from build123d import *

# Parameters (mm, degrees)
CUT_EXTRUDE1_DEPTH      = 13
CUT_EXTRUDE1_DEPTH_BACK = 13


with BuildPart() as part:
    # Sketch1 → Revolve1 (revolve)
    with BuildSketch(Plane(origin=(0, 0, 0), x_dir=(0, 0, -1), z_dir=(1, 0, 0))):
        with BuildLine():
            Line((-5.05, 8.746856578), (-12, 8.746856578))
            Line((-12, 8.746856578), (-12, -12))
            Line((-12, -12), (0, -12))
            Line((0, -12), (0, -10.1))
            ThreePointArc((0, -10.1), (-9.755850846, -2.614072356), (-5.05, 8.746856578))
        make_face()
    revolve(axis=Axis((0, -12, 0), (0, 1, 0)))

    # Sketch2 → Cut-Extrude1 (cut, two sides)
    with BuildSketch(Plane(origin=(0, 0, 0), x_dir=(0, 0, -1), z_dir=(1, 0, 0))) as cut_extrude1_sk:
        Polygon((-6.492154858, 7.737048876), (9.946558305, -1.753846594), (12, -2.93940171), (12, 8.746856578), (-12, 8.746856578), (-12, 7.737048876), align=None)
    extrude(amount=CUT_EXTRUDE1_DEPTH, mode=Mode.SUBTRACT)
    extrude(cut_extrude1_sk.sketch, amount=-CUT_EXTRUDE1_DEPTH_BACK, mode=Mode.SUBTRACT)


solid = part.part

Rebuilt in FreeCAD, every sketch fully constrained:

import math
import FreeCAD as App
import Part
import Sketcher

V = App.Vector
Q = App.Units.Quantity

doc = App.newDocument("Part")
body = doc.addObject("PartDesign::Body", "Body")

sketch1 = body.newObject("Sketcher::SketchObject", "Sketch")
sketch1.AttachmentSupport = (doc.getObject("YZ_Plane"), [""])
sketch1.MapMode = "FlatFace"
sketch1.addGeometry([
    Part.LineSegment(V(8.7, 5, 0), V(8.7, 12, 0)),
    Part.LineSegment(V(8.7, 12, 0), V(-12, 12, 0)),
    Part.LineSegment(V(-12, 12, 0), V(-12, 0, 0)),
    Part.LineSegment(V(-12, 0, 0), V(-10.1, 0, 0)),
    Part.ArcOfCircle(Part.Circle(V(0, 0, 0), V(0, 0, 1), 10.1), math.radians(30), math.radians(180)),
], False)
sketch1.addConstraint([
    Sketcher.Constraint("Coincident", 0, 2, 1, 1),
    Sketcher.Constraint("Coincident", 1, 2, 2, 1),
    Sketcher.Constraint("Coincident", 2, 2, 3, 1),
    Sketcher.Constraint("Coincident", 3, 2, 4, 2),
    Sketcher.Constraint("Coincident", 4, 1, 0, 1),
    Sketcher.Constraint("Vertical", 0),
    Sketcher.Constraint("Horizontal", 1),
    Sketcher.Constraint("Vertical", 2),
    Sketcher.Constraint("Horizontal", 3),
    Sketcher.Constraint("Coincident", 4, 3, -1, 1),
    Sketcher.Constraint("PointOnObject", 2, 2, -1),
    Sketcher.Constraint("Radius", 4, Q("10.1 mm")),
    Sketcher.Constraint("DistanceY", 2, 2, 2, 1, Q("12 mm")),
    Sketcher.Constraint("DistanceX", 3, 1, 3, 2, Q("1.9 mm")),
    Sketcher.Constraint("DistanceY", 0, 1, 0, 2, Q("6.95 mm")),
])
revolution = body.newObject("PartDesign::Revolution", "Revolution")
revolution.Profile = sketch1
revolution.ReferenceAxis = (sketch1, ["H_Axis"])
revolution.Angle = 360

sketch2 = body.newObject("Sketcher::SketchObject", "Sketch001")
sketch2.AttachmentSupport = (doc.getObject("YZ_Plane"), [""])
sketch2.MapMode = "FlatFace"
sketch2.addGeometry([
    Part.LineSegment(V(7.7, 6.5, 0), V(-1.8, -9.9, 0)),
    Part.LineSegment(V(-1.8, -9.9, 0), V(-2.9, -12, 0)),
    Part.LineSegment(V(-2.9, -12, 0), V(8.7, -12, 0)),
    Part.LineSegment(V(8.7, -12, 0), V(8.7, 12, 0)),
    Part.LineSegment(V(8.7, 12, 0), V(7.7, 12, 0)),
    Part.LineSegment(V(7.7, 12, 0), V(7.7, 6.5, 0)),
], False)
sketch2.addConstraint([
    Sketcher.Constraint("Coincident", 0, 2, 1, 1),
    Sketcher.Constraint("Coincident", 1, 2, 2, 1),
    Sketcher.Constraint("Coincident", 2, 2, 3, 1),
    Sketcher.Constraint("Coincident", 3, 2, 4, 1),
    Sketcher.Constraint("Coincident", 4, 2, 5, 1),
    Sketcher.Constraint("Coincident", 5, 2, 0, 1),
    Sketcher.Constraint("Horizontal", 2),
    Sketcher.Constraint("Vertical", 3),
    Sketcher.Constraint("Horizontal", 4),
    Sketcher.Constraint("Vertical", 5),
    Sketcher.Constraint("Parallel", 0, 1),
    Sketcher.Constraint("DistanceY", 3, 1, 3, 2, Q("24 mm")),
    Sketcher.Constraint("Angle", 0, Q("-120 deg")),
    Sketcher.Constraint("DistanceY", 1, 2, -1, 1, Q("12 mm")),
    Sketcher.Constraint("DistanceX", 2, 1, 2, 2, Q("11.686258 mm")),
    Sketcher.Constraint("DistanceX", 1, 2, -1, 1, Q("2.939402 mm")),
    Sketcher.Constraint("Distance", 0, Q("18.981791 mm")),
    Sketcher.Constraint("Distance", 1, Q("2.37111 mm")),
])
pocket1 = body.newObject("PartDesign::Pocket", "Pocket")
pocket1.Profile = sketch2
pocket1.Type = "ThroughAll"
pocket1.Midplane = True

doc.recompute()
